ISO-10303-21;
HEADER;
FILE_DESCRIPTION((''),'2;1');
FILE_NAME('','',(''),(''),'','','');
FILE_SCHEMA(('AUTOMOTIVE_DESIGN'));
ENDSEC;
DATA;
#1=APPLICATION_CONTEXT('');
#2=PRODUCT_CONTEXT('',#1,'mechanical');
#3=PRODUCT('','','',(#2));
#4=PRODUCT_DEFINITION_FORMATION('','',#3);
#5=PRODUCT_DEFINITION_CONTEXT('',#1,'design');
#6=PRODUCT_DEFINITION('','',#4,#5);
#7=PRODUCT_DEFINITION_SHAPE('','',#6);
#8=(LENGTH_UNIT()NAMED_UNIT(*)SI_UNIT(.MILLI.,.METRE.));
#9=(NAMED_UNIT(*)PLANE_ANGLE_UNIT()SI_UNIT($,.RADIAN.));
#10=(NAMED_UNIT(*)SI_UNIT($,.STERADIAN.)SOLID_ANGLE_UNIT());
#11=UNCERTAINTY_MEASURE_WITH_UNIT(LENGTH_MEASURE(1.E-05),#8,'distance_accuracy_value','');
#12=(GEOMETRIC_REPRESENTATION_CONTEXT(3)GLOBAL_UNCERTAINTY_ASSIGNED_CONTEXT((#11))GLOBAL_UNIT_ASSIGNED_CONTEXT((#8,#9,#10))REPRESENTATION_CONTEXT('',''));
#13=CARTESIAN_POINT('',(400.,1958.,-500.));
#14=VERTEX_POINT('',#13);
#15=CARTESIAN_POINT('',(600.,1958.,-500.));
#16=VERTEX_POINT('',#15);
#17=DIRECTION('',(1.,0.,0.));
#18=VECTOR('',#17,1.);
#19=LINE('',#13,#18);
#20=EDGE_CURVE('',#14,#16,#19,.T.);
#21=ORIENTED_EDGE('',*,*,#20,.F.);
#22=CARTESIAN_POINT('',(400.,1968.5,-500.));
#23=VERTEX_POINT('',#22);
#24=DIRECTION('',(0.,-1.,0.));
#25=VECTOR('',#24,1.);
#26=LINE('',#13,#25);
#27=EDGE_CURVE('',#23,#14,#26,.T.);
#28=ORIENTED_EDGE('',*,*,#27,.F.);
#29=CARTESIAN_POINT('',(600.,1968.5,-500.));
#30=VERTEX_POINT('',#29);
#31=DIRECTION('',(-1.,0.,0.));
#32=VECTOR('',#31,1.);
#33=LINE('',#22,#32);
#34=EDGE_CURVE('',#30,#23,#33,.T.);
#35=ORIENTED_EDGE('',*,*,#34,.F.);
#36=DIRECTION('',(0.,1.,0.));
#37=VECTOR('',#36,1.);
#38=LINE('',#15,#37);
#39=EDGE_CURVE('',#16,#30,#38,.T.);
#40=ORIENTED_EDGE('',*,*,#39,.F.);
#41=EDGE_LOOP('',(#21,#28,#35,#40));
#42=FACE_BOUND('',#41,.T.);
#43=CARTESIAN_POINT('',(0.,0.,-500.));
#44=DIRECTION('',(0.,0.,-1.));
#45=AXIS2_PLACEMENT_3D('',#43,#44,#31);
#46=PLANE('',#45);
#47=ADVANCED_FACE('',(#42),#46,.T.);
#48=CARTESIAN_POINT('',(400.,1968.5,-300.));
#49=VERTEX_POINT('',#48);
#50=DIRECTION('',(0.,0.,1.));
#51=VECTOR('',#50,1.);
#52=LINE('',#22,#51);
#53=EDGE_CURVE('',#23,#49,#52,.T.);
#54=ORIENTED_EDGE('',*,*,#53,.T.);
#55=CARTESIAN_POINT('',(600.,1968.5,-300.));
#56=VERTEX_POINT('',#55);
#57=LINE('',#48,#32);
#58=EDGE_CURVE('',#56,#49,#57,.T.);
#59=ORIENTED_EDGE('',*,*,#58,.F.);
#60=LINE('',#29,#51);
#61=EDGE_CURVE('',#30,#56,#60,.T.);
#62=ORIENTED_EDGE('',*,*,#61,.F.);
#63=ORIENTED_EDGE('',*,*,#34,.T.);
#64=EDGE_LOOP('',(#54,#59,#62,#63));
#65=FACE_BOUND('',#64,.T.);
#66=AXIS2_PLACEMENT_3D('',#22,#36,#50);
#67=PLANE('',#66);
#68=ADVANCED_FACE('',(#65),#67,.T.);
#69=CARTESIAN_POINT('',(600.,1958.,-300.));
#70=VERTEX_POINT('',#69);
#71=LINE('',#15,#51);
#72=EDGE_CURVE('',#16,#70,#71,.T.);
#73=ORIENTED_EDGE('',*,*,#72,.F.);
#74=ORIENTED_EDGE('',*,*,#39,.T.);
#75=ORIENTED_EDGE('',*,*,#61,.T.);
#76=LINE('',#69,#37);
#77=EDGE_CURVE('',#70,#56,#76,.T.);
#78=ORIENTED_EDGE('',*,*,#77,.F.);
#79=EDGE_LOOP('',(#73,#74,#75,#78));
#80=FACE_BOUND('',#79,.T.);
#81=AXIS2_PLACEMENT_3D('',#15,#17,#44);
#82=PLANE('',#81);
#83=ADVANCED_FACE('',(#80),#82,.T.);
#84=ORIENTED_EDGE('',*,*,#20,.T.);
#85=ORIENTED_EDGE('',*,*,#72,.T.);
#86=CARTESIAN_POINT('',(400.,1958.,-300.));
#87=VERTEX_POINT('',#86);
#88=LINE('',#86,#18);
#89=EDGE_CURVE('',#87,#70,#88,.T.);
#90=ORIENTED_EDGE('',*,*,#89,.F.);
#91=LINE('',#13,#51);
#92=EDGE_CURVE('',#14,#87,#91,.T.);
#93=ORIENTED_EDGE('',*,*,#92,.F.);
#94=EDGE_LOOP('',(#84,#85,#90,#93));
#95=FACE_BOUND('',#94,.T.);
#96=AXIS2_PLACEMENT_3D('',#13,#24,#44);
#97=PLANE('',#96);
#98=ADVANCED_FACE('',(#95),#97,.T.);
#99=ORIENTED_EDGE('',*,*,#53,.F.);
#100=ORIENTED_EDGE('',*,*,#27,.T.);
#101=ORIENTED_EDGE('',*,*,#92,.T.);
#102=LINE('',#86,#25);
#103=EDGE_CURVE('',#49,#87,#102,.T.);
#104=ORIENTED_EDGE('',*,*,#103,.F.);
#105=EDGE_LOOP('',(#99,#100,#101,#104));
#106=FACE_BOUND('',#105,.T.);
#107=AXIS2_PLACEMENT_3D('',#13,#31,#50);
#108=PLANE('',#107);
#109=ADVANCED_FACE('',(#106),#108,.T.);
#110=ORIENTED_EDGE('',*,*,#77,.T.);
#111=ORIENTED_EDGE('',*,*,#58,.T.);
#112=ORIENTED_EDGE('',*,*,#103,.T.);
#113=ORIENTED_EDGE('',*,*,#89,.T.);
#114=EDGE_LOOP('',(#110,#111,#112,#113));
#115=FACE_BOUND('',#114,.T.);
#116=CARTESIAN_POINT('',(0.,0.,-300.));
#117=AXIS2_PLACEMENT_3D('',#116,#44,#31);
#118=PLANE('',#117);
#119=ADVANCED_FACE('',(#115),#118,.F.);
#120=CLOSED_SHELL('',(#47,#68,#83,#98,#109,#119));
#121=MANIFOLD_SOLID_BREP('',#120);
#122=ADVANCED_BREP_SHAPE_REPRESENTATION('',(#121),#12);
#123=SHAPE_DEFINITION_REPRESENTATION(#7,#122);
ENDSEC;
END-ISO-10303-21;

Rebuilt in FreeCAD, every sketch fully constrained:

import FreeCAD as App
import Part
import Sketcher

V = App.Vector
Q = App.Units.Quantity


def add_polygon(sketch, points):
    """Adds a closed chain of lines whose ends are joined by coincident constraints."""
    first, n = sketch.GeometryCount, len(points)
    for a, b in zip(points, points[1:] + points[:1]):
        sketch.addGeometry(Part.LineSegment(App.Vector(*a, 0), App.Vector(*b, 0)), False)
    for i in range(n):
        sketch.addConstraint(Sketcher.Constraint("Coincident", first + i, 2, first + (i + 1) % n, 1))

doc = App.newDocument("Part")
body = doc.addObject("PartDesign::Body", "Body")

sketch1 = doc.addObject("Sketcher::SketchObject", "Sketch")
body.addObject(sketch1)
sketch1.AttachmentSupport = (doc.XY_Plane, [""])
sketch1.MapMode = "FlatFace"
sketch1.AttachmentOffset = App.Placement(V(0, 0, -300), App.Rotation())
add_polygon(sketch1, [(400, 1968), (400, 1958), (600, 1958), (600, 1968)])
sketch1.addConstraint([
    Sketcher.Constraint("Vertical", 0),
    Sketcher.Constraint("Horizontal", 1),
    Sketcher.Constraint("Vertical", 2),
    Sketcher.Constraint("Horizontal", 3),
    Sketcher.Constraint("DistanceX", 1, 1, 1, 2, Q("200 mm")),
    Sketcher.Constraint("DistanceY", 0, 2, 0, 1, Q("10.5 mm")),
    Sketcher.Constraint("DistanceX", -1, 1, 0, 2, Q("400 mm")),
    Sketcher.Constraint("DistanceY", -1, 1, 0, 2, Q("1958 mm")),
])
pad1 = doc.addObject("PartDesign::Pad", "Pad")
body.addObject(pad1)
pad1.Profile = sketch1
pad1.Length = 200
pad1.Reversed = True

doc.recompute()
